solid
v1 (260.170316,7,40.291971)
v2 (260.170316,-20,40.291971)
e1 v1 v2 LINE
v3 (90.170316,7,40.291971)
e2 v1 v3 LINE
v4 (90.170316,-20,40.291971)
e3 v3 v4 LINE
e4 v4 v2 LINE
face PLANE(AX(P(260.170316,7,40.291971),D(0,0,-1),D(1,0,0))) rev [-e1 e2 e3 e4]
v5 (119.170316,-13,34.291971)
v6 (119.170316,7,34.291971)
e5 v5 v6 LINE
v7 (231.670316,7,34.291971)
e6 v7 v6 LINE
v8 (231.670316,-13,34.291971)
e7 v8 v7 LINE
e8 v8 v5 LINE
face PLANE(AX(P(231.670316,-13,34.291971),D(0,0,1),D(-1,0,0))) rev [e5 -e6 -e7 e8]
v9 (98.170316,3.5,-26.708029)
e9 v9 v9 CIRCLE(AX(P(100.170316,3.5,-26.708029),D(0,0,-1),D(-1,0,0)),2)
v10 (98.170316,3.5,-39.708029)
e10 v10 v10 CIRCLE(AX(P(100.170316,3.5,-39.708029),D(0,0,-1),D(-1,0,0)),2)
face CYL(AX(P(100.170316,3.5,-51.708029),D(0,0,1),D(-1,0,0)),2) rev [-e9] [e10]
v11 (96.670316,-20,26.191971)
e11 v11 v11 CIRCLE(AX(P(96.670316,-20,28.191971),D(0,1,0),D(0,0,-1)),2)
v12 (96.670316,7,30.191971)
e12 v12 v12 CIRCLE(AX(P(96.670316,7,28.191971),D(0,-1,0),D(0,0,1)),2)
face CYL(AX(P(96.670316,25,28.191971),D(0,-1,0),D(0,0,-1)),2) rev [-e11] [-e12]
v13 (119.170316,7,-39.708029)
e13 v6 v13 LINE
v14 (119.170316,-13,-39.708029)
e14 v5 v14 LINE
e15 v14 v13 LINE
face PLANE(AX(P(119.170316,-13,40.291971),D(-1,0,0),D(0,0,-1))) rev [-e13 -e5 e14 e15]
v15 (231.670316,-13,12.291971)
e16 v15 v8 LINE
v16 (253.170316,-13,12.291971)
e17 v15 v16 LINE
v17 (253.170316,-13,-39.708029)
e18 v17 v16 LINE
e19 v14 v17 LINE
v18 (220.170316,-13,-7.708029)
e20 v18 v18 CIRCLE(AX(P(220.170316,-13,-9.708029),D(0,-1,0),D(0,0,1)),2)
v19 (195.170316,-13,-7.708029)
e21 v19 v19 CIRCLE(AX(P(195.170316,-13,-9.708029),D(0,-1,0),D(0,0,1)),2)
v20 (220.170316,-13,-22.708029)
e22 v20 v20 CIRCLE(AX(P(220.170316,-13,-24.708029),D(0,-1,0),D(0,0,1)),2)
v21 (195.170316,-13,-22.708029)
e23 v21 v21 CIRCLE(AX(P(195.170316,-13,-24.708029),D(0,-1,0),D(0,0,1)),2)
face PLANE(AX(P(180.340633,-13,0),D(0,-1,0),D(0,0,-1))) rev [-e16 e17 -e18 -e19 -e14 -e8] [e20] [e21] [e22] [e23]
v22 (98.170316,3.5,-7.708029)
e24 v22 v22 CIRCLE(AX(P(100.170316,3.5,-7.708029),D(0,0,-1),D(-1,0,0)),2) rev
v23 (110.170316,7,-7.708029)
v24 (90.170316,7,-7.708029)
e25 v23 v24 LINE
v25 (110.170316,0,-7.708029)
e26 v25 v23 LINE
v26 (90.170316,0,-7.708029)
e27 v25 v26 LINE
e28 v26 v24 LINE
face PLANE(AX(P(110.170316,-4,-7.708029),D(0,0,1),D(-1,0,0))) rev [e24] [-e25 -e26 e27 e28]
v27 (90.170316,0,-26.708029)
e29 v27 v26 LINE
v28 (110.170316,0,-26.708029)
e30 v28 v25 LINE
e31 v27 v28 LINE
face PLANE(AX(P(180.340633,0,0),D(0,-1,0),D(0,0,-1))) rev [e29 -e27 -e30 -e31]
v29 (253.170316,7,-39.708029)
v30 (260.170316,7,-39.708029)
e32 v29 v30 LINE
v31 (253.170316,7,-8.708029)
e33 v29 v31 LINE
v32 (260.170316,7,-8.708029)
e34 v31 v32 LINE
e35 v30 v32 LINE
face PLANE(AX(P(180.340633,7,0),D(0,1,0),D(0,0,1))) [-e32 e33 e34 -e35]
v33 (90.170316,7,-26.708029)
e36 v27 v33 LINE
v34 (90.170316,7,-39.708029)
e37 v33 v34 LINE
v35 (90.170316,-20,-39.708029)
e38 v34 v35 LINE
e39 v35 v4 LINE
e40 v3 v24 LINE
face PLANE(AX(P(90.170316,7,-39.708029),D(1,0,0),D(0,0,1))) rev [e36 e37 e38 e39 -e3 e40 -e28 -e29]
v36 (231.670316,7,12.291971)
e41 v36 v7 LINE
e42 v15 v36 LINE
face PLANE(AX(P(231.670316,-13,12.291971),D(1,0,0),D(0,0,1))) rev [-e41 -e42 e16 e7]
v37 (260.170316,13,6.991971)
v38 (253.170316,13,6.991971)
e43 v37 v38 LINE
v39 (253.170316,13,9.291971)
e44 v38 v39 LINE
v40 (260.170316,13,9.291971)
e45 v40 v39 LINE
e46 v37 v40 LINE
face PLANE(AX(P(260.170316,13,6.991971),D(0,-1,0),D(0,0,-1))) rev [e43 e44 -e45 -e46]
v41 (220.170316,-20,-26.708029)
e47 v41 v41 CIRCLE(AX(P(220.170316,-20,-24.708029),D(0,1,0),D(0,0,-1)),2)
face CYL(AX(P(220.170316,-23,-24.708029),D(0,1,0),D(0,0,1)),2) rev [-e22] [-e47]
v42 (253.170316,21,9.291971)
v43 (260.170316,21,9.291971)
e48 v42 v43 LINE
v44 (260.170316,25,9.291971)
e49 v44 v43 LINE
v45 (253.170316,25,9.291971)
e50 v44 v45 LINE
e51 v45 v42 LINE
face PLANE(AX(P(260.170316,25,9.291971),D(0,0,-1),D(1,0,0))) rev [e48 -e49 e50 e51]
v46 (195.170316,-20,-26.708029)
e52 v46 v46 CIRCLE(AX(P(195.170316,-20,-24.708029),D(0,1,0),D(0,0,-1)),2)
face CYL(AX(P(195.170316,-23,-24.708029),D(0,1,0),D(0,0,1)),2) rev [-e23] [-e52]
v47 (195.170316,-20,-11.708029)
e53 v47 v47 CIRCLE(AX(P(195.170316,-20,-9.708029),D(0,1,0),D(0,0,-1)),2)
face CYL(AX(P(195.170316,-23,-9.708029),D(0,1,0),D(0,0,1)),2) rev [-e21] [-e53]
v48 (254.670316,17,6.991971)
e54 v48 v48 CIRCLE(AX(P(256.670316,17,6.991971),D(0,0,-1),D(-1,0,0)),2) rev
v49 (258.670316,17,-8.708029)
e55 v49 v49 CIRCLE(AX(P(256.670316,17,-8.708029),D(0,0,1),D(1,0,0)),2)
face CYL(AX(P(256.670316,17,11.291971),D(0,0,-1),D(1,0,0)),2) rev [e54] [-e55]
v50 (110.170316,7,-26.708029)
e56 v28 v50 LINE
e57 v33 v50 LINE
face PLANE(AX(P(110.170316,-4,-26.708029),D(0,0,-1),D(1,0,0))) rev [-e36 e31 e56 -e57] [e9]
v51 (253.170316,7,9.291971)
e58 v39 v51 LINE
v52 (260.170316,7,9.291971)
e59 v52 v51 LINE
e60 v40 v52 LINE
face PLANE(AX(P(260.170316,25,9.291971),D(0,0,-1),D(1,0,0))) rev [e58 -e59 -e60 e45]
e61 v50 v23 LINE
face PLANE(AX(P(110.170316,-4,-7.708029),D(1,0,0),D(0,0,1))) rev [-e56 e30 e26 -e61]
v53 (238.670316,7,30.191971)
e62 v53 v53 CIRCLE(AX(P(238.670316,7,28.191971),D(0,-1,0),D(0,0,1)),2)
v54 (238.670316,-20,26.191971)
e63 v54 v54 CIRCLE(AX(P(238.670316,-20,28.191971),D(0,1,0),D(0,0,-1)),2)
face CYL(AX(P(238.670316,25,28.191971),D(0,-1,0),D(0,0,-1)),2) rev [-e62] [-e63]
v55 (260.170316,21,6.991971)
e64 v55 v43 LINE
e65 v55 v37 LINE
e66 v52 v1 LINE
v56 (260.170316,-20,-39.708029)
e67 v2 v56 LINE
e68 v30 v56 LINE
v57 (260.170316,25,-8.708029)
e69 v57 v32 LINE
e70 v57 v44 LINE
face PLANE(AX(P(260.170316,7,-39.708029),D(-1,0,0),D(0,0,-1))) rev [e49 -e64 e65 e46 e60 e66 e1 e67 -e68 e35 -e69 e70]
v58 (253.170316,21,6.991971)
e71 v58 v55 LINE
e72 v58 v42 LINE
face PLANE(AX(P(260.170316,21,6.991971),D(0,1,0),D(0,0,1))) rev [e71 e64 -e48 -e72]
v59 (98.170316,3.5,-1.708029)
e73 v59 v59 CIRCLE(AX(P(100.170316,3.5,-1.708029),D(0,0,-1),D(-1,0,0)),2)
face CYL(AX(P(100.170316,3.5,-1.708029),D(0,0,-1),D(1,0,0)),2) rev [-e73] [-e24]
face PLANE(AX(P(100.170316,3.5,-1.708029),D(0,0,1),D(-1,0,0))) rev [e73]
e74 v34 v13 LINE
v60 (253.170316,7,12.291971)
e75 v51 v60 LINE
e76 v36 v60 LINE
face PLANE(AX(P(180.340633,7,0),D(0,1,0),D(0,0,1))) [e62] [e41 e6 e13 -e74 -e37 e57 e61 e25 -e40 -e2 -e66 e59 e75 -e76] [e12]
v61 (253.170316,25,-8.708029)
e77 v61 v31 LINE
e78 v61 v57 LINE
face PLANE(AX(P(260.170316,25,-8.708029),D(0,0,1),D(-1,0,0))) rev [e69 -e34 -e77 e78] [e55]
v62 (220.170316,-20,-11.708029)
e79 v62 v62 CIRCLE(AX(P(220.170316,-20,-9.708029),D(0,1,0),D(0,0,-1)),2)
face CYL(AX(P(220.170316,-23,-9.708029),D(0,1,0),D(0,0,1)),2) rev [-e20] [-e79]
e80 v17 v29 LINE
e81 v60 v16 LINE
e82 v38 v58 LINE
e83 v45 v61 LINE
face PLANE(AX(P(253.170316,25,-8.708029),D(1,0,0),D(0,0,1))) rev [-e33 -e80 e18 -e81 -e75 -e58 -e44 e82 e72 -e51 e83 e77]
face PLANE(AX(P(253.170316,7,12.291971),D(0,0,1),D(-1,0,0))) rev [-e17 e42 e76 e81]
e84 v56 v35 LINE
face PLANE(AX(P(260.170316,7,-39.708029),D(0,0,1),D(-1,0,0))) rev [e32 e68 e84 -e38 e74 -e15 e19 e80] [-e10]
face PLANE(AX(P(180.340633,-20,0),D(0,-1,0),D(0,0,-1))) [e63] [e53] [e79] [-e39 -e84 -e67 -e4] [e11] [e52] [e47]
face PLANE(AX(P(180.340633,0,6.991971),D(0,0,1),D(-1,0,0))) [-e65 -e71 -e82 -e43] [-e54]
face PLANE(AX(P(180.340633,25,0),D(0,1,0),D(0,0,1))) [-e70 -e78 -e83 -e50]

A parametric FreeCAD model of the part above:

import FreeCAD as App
import Part
import Sketcher

doc = App.newDocument("Part")
body = doc.addObject("PartDesign::Body", "Body")

sketch1 = doc.addObject("Sketcher::SketchObject", "Sketch")
body.addObject(sketch1)
sketch1.AttachmentSupport = (doc.XZ_Plane, [""])
sketch1.MapMode = "FlatFace"
sketch1.addGeometry(Part.LineSegment(App.Vector(-80, -40, 0), App.Vector(-80, 40, 0)), False)
sketch1.addGeometry(Part.LineSegment(App.Vector(-80, 40, 0), App.Vector(90, 40, 0)), False)
sketch1.addGeometry(Part.LineSegment(App.Vector(90, 40, 0), App.Vector(90, -40, 0)), False)
sketch1.addGeometry(Part.LineSegment(App.Vector(90, -40, 0), App.Vector(-80, -40, 0)), False)
sketch1.addConstraint(Sketcher.Constraint("Coincident", 0, 2, 1, 1))
sketch1.addConstraint(Sketcher.Constraint("Coincident", 1, 2, 2, 1))
sketch1.addConstraint(Sketcher.Constraint("Coincident", 2, 2, 3, 1))
sketch1.addConstraint(Sketcher.Constraint("Coincident", 3, 2, 0, 1))
sketch1.addConstraint(Sketcher.Constraint("Vertical", 0))
sketch1.addConstraint(Sketcher.Constraint("Horizontal", 1))
sketch1.addConstraint(Sketcher.Constraint("Vertical", 2))
sketch1.addConstraint(Sketcher.Constraint("Horizontal", 3))
sketch1.addConstraint(Sketcher.Constraint("DistanceX", 1, 1, 1, 2, 170.0))
sketch1.addConstraint(Sketcher.Constraint("DistanceY", 0, 1, 0, 2, 80.0))
sketch1.addConstraint(Sketcher.Constraint("DistanceY", -1, 1, 0, 2, 40.291971))
sketch1.addConstraint(Sketcher.Constraint("DistanceX", 0, 2, -1, 1, 79.829684))
pad1 = doc.addObject("PartDesign::Pad", "Pad")
body.addObject(pad1)
pad1.Profile = sketch1
pad1.Length = 7
pad1.Reversed = True

sketch2 = doc.addObject("Sketcher::SketchObject", "Sketch001")
body.addObject(sketch2)
sketch2.AttachmentSupport = (doc.XZ_Plane, [""])
sketch2.MapMode = "FlatFace"
sketch2.AttachmentOffset = App.Placement(App.Vector(0, 0, -7), App.Rotation())
sketch2.addGeometry(Part.LineSegment(App.Vector(-80, -9, 0), App.Vector(-80, 9, 0)), False)
sketch2.addGeometry(Part.LineSegment(App.Vector(-80, 9, 0), App.Vector(-73, 9, 0)), False)
sketch2.addGeometry(Part.LineSegment(App.Vector(-73, 9, 0), App.Vector(-73, -9, 0)), False)
sketch2.addGeometry(Part.LineSegment(App.Vector(-73, -9, 0), App.Vector(-80, -9, 0)), False)
sketch2.addConstraint(Sketcher.Constraint("Coincident", 0, 2, 1, 1))
sketch2.addConstraint(Sketcher.Constraint("Coincident", 1, 2, 2, 1))
sketch2.addConstraint(Sketcher.Constraint("Coincident", 2, 2, 3, 1))
sketch2.addConstraint(Sketcher.Constraint("Coincident", 3, 2, 0, 1))
sketch2.addConstraint(Sketcher.Constraint("Vertical", 0))
sketch2.addConstraint(Sketcher.Constraint("Horizontal", 1))
sketch2.addConstraint(Sketcher.Constraint("Vertical", 2))
sketch2.addConstraint(Sketcher.Constraint("Horizontal", 3))
sketch2.addConstraint(Sketcher.Constraint("DistanceX", 1, 1, 1, 2, 7.0))
sketch2.addConstraint(Sketcher.Constraint("DistanceY", 0, 1, 0, 2, 18.0))
sketch2.addConstraint(Sketcher.Constraint("DistanceY", -1, 1, 0, 2, 9.291971))
sketch2.addConstraint(Sketcher.Constraint("DistanceX", 0, 2, -1, 1, 79.829684))
pad2 = doc.addObject("PartDesign::Pad", "Pad001")
body.addObject(pad2)
pad2.Profile = sketch2
pad2.Length = 18
pad2.Reversed = True

sketch3 = doc.addObject("Sketcher::SketchObject", "Sketch002")
body.addObject(sketch3)
sketch3.AttachmentSupport = (doc.XY_Plane, [""])
sketch3.MapMode = "FlatFace"
sketch3.AttachmentOffset = App.Placement(App.Vector(0, 0, -8.708029), App.Rotation())
sketch3.addGeometry(Part.Circle(App.Vector(-76.3, 17, 0), App.Vector(0, 0, 1), 2), False)
sketch3.addConstraint(Sketcher.Constraint("Diameter", 0, 4.0))
sketch3.addConstraint(Sketcher.Constraint("DistanceY", -1, 1, 0, 3, 17.0))
sketch3.addConstraint(Sketcher.Constraint("DistanceX", 0, 3, -1, 1, 76.329684))
pocket1 = doc.addObject("PartDesign::Pocket", "Pocket")
body.addObject(pocket1)
pocket1.Profile = sketch3
pocket1.Length = 20
pocket1.Reversed = True

sketch4 = doc.addObject("Sketcher::SketchObject", "Sketch003")
body.addObject(sketch4)
sketch4.AttachmentSupport = (doc.XY_Plane, [""])
sketch4.MapMode = "FlatFace"
sketch4.AttachmentOffset = App.Placement(App.Vector(0, 0, 9.291971), App.Rotation())
sketch4.addGeometry(Part.LineSegment(App.Vector(-80, 21, 0), App.Vector(-80, 13, 0)), False)
sketch4.addGeometry(Part.LineSegment(App.Vector(-80, 13, 0), App.Vector(-73, 13, 0)), False)
sketch4.addGeometry(Part.LineSegment(App.Vector(-73, 13, 0), App.Vector(-73, 21, 0)), False)
sketch4.addGeometry(Part.LineSegment(App.Vector(-73, 21, 0), App.Vector(-80, 21, 0)), False)
sketch4.addConstraint(Sketcher.Constraint("Coincident", 0, 2, 1, 1))
sketch4.addConstraint(Sketcher.Constraint("Coincident", 1, 2, 2, 1))
sketch4.addConstraint(Sketcher.Constraint("Coincident", 2, 2, 3, 1))
sketch4.addConstraint(Sketcher.Constraint("Coincident", 3, 2, 0, 1))
sketch4.addConstraint(Sketcher.Constraint("Vertical", 0))
sketch4.addConstraint(Sketcher.Constraint("Horizontal", 1))
sketch4.addConstraint(Sketcher.Constraint("Vertical", 2))
sketch4.addConstraint(Sketcher.Constraint("Horizontal", 3))
sketch4.addConstraint(Sketcher.Constraint("DistanceX", 1, 1, 1, 2, 7.0))
sketch4.addConstraint(Sketcher.Constraint("DistanceY", 0, 2, 0, 1, 8.0))
sketch4.addConstraint(Sketcher.Constraint("DistanceY", -1, 1, 0, 2, 13.0))
sketch4.addConstraint(Sketcher.Constraint("DistanceX", 0, 2, -1, 1, 79.829684))
pocket2 = doc.addObject("PartDesign::Pocket", "Pocket001")
body.addObject(pocket2)
pocket2.Profile = sketch4
pocket2.Length = 2.3

sketch5 = doc.addObject("Sketcher::SketchObject", "Sketch004")
body.addObject(sketch5)
sketch5.AttachmentSupport = (doc.XZ_Plane, [""])
sketch5.MapMode = "FlatFace"
sketch5.AttachmentOffset = App.Placement(App.Vector(0, 0, -7), App.Rotation())
sketch5.addGeometry(Part.LineSegment(App.Vector(70, -27, 0), App.Vector(70, -8, 0)), False)
sketch5.addGeometry(Part.LineSegment(App.Vector(70, -8, 0), App.Vector(90, -8, 0)), False)
sketch5.addGeometry(Part.LineSegment(App.Vector(90, -8, 0), App.Vector(90, -27, 0)), False)
sketch5.addGeometry(Part.LineSegment(App.Vector(90, -27, 0), App.Vector(70, -27, 0)), False)
sketch5.addConstraint(Sketcher.Constraint("Coincident", 0, 2, 1, 1))
sketch5.addConstraint(Sketcher.Constraint("Coincident", 1, 2, 2, 1))
sketch5.addConstraint(Sketcher.Constraint("Coincident", 2, 2, 3, 1))
sketch5.addConstraint(Sketcher.Constraint("Coincident", 3, 2, 0, 1))
sketch5.addConstraint(Sketcher.Constraint("Vertical", 0))
sketch5.addConstraint(Sketcher.Constraint("Horizontal", 1))
sketch5.addConstraint(Sketcher.Constraint("Vertical", 2))
sketch5.addConstraint(Sketcher.Constraint("Horizontal", 3))
sketch5.addConstraint(Sketcher.Constraint("DistanceX", 1, 1, 1, 2, 20.0))
sketch5.addConstraint(Sketcher.Constraint("DistanceY", 0, 1, 0, 2, 19.0))
sketch5.addConstraint(Sketcher.Constraint("DistanceY", 0, 2, -1, 1, 7.708029))
sketch5.addConstraint(Sketcher.Constraint("DistanceX", -1, 1, 0, 2, 70.170316))
pocket3 = doc.addObject("PartDesign::Pocket", "Pocket002")
body.addObject(pocket3)
pocket3.Profile = sketch5
pocket3.Length = 11
pocket3.Reversed = True

sketch6 = doc.addObject("Sketcher::SketchObject", "Sketch005")
body.addObject(sketch6)
sketch6.AttachmentSupport = (doc.XY_Plane, [""])
sketch6.MapMode = "FlatFace"
sketch6.AttachmentOffset = App.Placement(App.Vector(0, 0, -26.708029), App.Rotation())
sketch6.addGeometry(Part.Circle(App.Vector(80.2, 3.5, 0), App.Vector(0, 0, 1), 2), False)
sketch6.addConstraint(Sketcher.Constraint("Diameter", 0, 4.0))
sketch6.addConstraint(Sketcher.Constraint("DistanceY", -1, 1, 0, 3, 3.5))
sketch6.addConstraint(Sketcher.Constraint("DistanceX", -1, 1, 0, 3, 80.170316))
pocket4 = doc.addObject("PartDesign::Pocket", "Pocket003")
body.addObject(pocket4)
pocket4.Profile = sketch6
pocket4.Length = 25

sketch7 = doc.addObject("Sketcher::SketchObject", "Sketch006")
body.addObject(sketch7)
sketch7.AttachmentSupport = (doc.XY_Plane, [""])
sketch7.MapMode = "FlatFace"
sketch7.AttachmentOffset = App.Placement(App.Vector(0, 0, -26.708029), App.Rotation())
sketch7.addGeometry(Part.Circle(App.Vector(80.2, 3.5, 0), App.Vector(0, 0, 1), 2), False)
sketch7.addConstraint(Sketcher.Constraint("Diameter", 0, 4.0))
sketch7.addConstraint(Sketcher.Constraint("DistanceY", -1, 1, 0, 3, 3.5))
sketch7.addConstraint(Sketcher.Constraint("DistanceX", -1, 1, 0, 3, 80.170316))
pocket5 = doc.addObject("PartDesign::Pocket", "Pocket004")
body.addObject(pocket5)
pocket5.Profile = sketch7
pocket5.Length = 25
pocket5.Reversed = True

sketch8 = doc.addObject("Sketcher::SketchObject", "Sketch007")
body.addObject(sketch8)
sketch8.AttachmentSupport = (doc.XZ_Plane, [""])
sketch8.MapMode = "FlatFace"
sketch8.addGeometry(Part.LineSegment(App.Vector(-80, 40, 0), App.Vector(-80, -40, 0)), False)
sketch8.addGeometry(Part.LineSegment(App.Vector(-80, -40, 0), App.Vector(90, -40, 0)), False)
sketch8.addGeometry(Part.LineSegment(App.Vector(90, -40, 0), App.Vector(90, 40, 0)), False)
sketch8.addGeometry(Part.LineSegment(App.Vector(90, 40, 0), App.Vector(-80, 40, 0)), False)
sketch8.addConstraint(Sketcher.Constraint("Coincident", 0, 2, 1, 1))
sketch8.addConstraint(Sketcher.Constraint("Coincident", 1, 2, 2, 1))
sketch8.addConstraint(Sketcher.Constraint("Coincident", 2, 2, 3, 1))
sketch8.addConstraint(Sketcher.Constraint("Coincident", 3, 2, 0, 1))
sketch8.addConstraint(Sketcher.Constraint("Vertical", 0))
sketch8.addConstraint(Sketcher.Constraint("Horizontal", 1))
sketch8.addConstraint(Sketcher.Constraint("Vertical", 2))
sketch8.addConstraint(Sketcher.Constraint("Horizontal", 3))
sketch8.addConstraint(Sketcher.Constraint("DistanceX", 1, 1, 1, 2, 170.0))
sketch8.addConstraint(Sketcher.Constraint("DistanceY", 0, 2, 0, 1, 80.0))
sketch8.addConstraint(Sketcher.Constraint("DistanceY", 0, 2, -1, 1, 39.708029))
sketch8.addConstraint(Sketcher.Constraint("DistanceX", 0, 2, -1, 1, 79.829684))
pad3 = doc.addObject("PartDesign::Pad", "Pad002")
body.addObject(pad3)
pad3.Profile = sketch8
pad3.Length = 20

sketch9 = doc.addObject("Sketcher::SketchObject", "Sketch008")
body.addObject(sketch9)
sketch9.AttachmentSupport = (doc.XZ_Plane, [""])
sketch9.MapMode = "FlatFace"
sketch9.AttachmentOffset = App.Placement(App.Vector(0, 0, -7), App.Rotation())
sketch9.addGeometry(Part.LineSegment(App.Vector(-73, -40, 0), App.Vector(-73, 40, 0)), False)
sketch9.addGeometry(Part.LineSegment(App.Vector(-73, 40, 0), App.Vector(61, 40, 0)), False)
sketch9.addGeometry(Part.LineSegment(App.Vector(61, 40, 0), App.Vector(61, -40, 0)), False)
sketch9.addGeometry(Part.LineSegment(App.Vector(61, -40, 0), App.Vector(-73, -40, 0)), False)
sketch9.addConstraint(Sketcher.Constraint("Coincident", 0, 2, 1, 1))
sketch9.addConstraint(Sketcher.Constraint("Coincident", 1, 2, 2, 1))
sketch9.addConstraint(Sketcher.Constraint("Coincident", 2, 2, 3, 1))
sketch9.addConstraint(Sketcher.Constraint("Coincident", 3, 2, 0, 1))
sketch9.addConstraint(Sketcher.Constraint("Vertical", 0))
sketch9.addConstraint(Sketcher.Constraint("Horizontal", 1))
sketch9.addConstraint(Sketcher.Constraint("Vertical", 2))
sketch9.addConstraint(Sketcher.Constraint("Horizontal", 3))
sketch9.addConstraint(Sketcher.Constraint("DistanceX", 1, 1, 1, 2, 134.0))
sketch9.addConstraint(Sketcher.Constraint("DistanceY", 0, 1, 0, 2, 80.0))
sketch9.addConstraint(Sketcher.Constraint("DistanceY", -1, 1, 0, 2, 40.291971))
sketch9.addConstraint(Sketcher.Constraint("DistanceX", 0, 2, -1, 1, 72.829684))
pocket6 = doc.addObject("PartDesign::Pocket", "Pocket005")
body.addObject(pocket6)
pocket6.Profile = sketch9
pocket6.Length = 20
pocket6.Reversed = True

sketch10 = doc.addObject("Sketcher::SketchObject", "Sketch009")
body.addObject(sketch10)
sketch10.AttachmentSupport = (doc.XZ_Plane, [""])
sketch10.MapMode = "FlatFace"
sketch10.AttachmentOffset = App.Placement(App.Vector(0, 0, 13), App.Rotation())
sketch10.addGeometry(Part.LineSegment(App.Vector(-73, 12, 0), App.Vector(-73, 40, 0)), False)
sketch10.addGeometry(Part.LineSegment(App.Vector(-73, 40, 0), App.Vector(61, 40, 0)), False)
sketch10.addGeometry(Part.LineSegment(App.Vector(61, 40, 0), App.Vector(61, 12, 0)), False)
sketch10.addGeometry(Part.LineSegment(App.Vector(61, 12, 0), App.Vector(-73, 12, 0)), False)
sketch10.addConstraint(Sketcher.Constraint("Coincident", 0, 2, 1, 1))
sketch10.addConstraint(Sketcher.Constraint("Coincident", 1, 2, 2, 1))
sketch10.addConstraint(Sketcher.Constraint("Coincident", 2, 2, 3, 1))
sketch10.addConstraint(Sketcher.Constraint("Coincident", 3, 2, 0, 1))
sketch10.addConstraint(Sketcher.Constraint("Vertical", 0))
sketch10.addConstraint(Sketcher.Constraint("Horizontal", 1))
sketch10.addConstraint(Sketcher.Constraint("Vertical", 2))
sketch10.addConstraint(Sketcher.Constraint("Horizontal", 3))
sketch10.addConstraint(Sketcher.Constraint("DistanceX", 1, 1, 1, 2, 134.0))
sketch10.addConstraint(Sketcher.Constraint("DistanceY", 0, 1, 0, 2, 28.0))
sketch10.addConstraint(Sketcher.Constraint("DistanceY", -1, 1, 0, 2, 40.291971))
sketch10.addConstraint(Sketcher.Constraint("DistanceX", 0, 2, -1, 1, 72.829684))
pad4 = doc.addObject("PartDesign::Pad", "Pad003")
body.addObject(pad4)
pad4.Profile = sketch10
pad4.Length = 20
pad4.Reversed = True

sketch11 = doc.addObject("Sketcher::SketchObject", "Sketch010")
body.addObject(sketch11)
sketch11.AttachmentSupport = (doc.XZ_Plane, [""])
sketch11.MapMode = "FlatFace"
sketch11.AttachmentOffset = App.Placement(App.Vector(0, 0, 20), App.Rotation())
sketch11.addGeometry(Part.Circle(App.Vector(83.7, 28.2, 0), App.Vector(0, 0, 1), 2), False)
sketch11.addGeometry(Part.Circle(App.Vector(-58.3, 28.2, 0), App.Vector(0, 0, 1), 2), False)
sketch11.addConstraint(Sketcher.Constraint("Equal", 0, 1))
sketch11.addConstraint(Sketcher.Constraint("Horizontal", 0, 3, 1, 3))
sketch11.addConstraint(Sketcher.Constraint("Diameter", 0, 4.0))
sketch11.addConstraint(Sketcher.Constraint("DistanceX", 1, 3, 0, 3, 142.0))
sketch11.addConstraint(Sketcher.Constraint("DistanceY", -1, 1, 0, 3, 28.191971))
sketch11.addConstraint(Sketcher.Constraint("DistanceX", -1, 1, 0, 3, 83.670316))
pocket7 = doc.addObject("PartDesign::Pocket", "Pocket006")
body.addObject(pocket7)
pocket7.Profile = sketch11
pocket7.Type = "ThroughAll"
pocket7.Midplane = True

sketch12 = doc.addObject("Sketcher::SketchObject", "Sketch011")
body.addObject(sketch12)
sketch12.AttachmentSupport = (doc.XZ_Plane, [""])
sketch12.MapMode = "FlatFace"
sketch12.AttachmentOffset = App.Placement(App.Vector(0, 0, -7), App.Rotation())
sketch12.addGeometry(Part.LineSegment(App.Vector(-51, 12, 0), App.Vector(-51, 34, 0)), False)
sketch12.addGeometry(Part.LineSegment(App.Vector(-51, 34, 0), App.Vector(61, 34, 0)), False)
sketch12.addGeometry(Part.LineSegment(App.Vector(61, 34, 0), App.Vector(61, 12, 0)), False)
sketch12.addGeometry(Part.LineSegment(App.Vector(61, 12, 0), App.Vector(-51, 12, 0)), False)
sketch12.addConstraint(Sketcher.Constraint("Coincident", 0, 2, 1, 1))
sketch12.addConstraint(Sketcher.Constraint("Coincident", 1, 2, 2, 1))
sketch12.addConstraint(Sketcher.Constraint("Coincident", 2, 2, 3, 1))
sketch12.addConstraint(Sketcher.Constraint("Coincident", 3, 2, 0, 1))
sketch12.addConstraint(Sketcher.Constraint("Vertical", 0))
sketch12.addConstraint(Sketcher.Constraint("Horizontal", 1))
sketch12.addConstraint(Sketcher.Constraint("Vertical", 2))
sketch12.addConstraint(Sketcher.Constraint("Horizontal", 3))
sketch12.addConstraint(Sketcher.Constraint("DistanceY", 0, 1, 0, 2, 22.0))
sketch12.addConstraint(Sketcher.Constraint("DistanceX", 1, 1, 1, 2, 112.5))
sketch12.addConstraint(Sketcher.Constraint("DistanceY", -1, 1, 0, 2, 34.291971))
sketch12.addConstraint(Sketcher.Constraint("DistanceX", 0, 2, -1, 1, 51.329684))
pocket8 = doc.addObject("PartDesign::Pocket", "Pocket007")
body.addObject(pocket8)
pocket8.Profile = sketch12
pocket8.Length = 20
pocket8.Reversed = True

sketch13 = doc.addObject("Sketcher::SketchObject", "Sketch012")
body.addObject(sketch13)
sketch13.AttachmentSupport = (doc.XZ_Plane, [""])
sketch13.MapMode = "FlatFace"
sketch13.AttachmentOffset = App.Placement(App.Vector(0, 0, 13), App.Rotation())
sketch13.addGeometry(Part.Circle(App.Vector(-39.8, -24.7, 0), App.Vector(0, 0, 1), 2), False)
sketch13.addGeometry(Part.Circle(App.Vector(-39.8, -9.7, 0), App.Vector(0, 0, 1), 2), False)
sketch13.addGeometry(Part.Circle(App.Vector(-14.8, -9.7, 0), App.Vector(0, 0, 1), 2), False)
sketch13.addGeometry(Part.Circle(App.Vector(-14.8, -24.7, 0), App.Vector(0, 0, 1), 2), False)
sketch13.addConstraint(Sketcher.Constraint("Equal", 0, 1))
sketch13.addConstraint(Sketcher.Constraint("Equal", 1, 2))
sketch13.addConstraint(Sketcher.Constraint("Equal", 2, 3))
sketch13.addConstraint(Sketcher.Constraint("Horizontal", 1, 3, 2, 3))
sketch13.addConstraint(Sketcher.Constraint("Horizontal", 0, 3, 3, 3))
sketch13.addConstraint(Sketcher.Constraint("Vertical", 0, 3, 1, 3))
sketch13.addConstraint(Sketcher.Constraint("Vertical", 2, 3, 3, 3))
sketch13.addConstraint(Sketcher.Constraint("Diameter", 0, 4.0))
sketch13.addConstraint(Sketcher.Constraint("DistanceY", 0, 3, 1, 3, 15.0))
sketch13.addConstraint(Sketcher.Constraint("DistanceX", 1, 3, 2, 3, 25.0))
sketch13.addConstraint(Sketcher.Constraint("DistanceY", 0, 3, -1, 1, 24.708029))
sketch13.addConstraint(Sketcher.Constraint("DistanceX", 0, 3, -1, 1, 39.829684))
pocket9 = doc.addObject("PartDesign::Pocket", "Pocket008")
body.addObject(pocket9)
pocket9.Profile = sketch13
pocket9.Length = 10
pocket9.Reversed = True
body2 = doc.addObject("PartDesign::Body", "Body001")
doc.recompute()

mirroring = doc.addObject("Part::Mirroring", "Mirroring")
mirroring.Source = body
mirroring.Base = App.Vector(90.170316, 7, -39.708029)
mirroring.Normal = App.Vector(-1, 0, 0)
body2.BaseFeature = mirroring
doc.recompute()
body.Visibility = False
mirroring.Visibility = False

doc.recompute()
